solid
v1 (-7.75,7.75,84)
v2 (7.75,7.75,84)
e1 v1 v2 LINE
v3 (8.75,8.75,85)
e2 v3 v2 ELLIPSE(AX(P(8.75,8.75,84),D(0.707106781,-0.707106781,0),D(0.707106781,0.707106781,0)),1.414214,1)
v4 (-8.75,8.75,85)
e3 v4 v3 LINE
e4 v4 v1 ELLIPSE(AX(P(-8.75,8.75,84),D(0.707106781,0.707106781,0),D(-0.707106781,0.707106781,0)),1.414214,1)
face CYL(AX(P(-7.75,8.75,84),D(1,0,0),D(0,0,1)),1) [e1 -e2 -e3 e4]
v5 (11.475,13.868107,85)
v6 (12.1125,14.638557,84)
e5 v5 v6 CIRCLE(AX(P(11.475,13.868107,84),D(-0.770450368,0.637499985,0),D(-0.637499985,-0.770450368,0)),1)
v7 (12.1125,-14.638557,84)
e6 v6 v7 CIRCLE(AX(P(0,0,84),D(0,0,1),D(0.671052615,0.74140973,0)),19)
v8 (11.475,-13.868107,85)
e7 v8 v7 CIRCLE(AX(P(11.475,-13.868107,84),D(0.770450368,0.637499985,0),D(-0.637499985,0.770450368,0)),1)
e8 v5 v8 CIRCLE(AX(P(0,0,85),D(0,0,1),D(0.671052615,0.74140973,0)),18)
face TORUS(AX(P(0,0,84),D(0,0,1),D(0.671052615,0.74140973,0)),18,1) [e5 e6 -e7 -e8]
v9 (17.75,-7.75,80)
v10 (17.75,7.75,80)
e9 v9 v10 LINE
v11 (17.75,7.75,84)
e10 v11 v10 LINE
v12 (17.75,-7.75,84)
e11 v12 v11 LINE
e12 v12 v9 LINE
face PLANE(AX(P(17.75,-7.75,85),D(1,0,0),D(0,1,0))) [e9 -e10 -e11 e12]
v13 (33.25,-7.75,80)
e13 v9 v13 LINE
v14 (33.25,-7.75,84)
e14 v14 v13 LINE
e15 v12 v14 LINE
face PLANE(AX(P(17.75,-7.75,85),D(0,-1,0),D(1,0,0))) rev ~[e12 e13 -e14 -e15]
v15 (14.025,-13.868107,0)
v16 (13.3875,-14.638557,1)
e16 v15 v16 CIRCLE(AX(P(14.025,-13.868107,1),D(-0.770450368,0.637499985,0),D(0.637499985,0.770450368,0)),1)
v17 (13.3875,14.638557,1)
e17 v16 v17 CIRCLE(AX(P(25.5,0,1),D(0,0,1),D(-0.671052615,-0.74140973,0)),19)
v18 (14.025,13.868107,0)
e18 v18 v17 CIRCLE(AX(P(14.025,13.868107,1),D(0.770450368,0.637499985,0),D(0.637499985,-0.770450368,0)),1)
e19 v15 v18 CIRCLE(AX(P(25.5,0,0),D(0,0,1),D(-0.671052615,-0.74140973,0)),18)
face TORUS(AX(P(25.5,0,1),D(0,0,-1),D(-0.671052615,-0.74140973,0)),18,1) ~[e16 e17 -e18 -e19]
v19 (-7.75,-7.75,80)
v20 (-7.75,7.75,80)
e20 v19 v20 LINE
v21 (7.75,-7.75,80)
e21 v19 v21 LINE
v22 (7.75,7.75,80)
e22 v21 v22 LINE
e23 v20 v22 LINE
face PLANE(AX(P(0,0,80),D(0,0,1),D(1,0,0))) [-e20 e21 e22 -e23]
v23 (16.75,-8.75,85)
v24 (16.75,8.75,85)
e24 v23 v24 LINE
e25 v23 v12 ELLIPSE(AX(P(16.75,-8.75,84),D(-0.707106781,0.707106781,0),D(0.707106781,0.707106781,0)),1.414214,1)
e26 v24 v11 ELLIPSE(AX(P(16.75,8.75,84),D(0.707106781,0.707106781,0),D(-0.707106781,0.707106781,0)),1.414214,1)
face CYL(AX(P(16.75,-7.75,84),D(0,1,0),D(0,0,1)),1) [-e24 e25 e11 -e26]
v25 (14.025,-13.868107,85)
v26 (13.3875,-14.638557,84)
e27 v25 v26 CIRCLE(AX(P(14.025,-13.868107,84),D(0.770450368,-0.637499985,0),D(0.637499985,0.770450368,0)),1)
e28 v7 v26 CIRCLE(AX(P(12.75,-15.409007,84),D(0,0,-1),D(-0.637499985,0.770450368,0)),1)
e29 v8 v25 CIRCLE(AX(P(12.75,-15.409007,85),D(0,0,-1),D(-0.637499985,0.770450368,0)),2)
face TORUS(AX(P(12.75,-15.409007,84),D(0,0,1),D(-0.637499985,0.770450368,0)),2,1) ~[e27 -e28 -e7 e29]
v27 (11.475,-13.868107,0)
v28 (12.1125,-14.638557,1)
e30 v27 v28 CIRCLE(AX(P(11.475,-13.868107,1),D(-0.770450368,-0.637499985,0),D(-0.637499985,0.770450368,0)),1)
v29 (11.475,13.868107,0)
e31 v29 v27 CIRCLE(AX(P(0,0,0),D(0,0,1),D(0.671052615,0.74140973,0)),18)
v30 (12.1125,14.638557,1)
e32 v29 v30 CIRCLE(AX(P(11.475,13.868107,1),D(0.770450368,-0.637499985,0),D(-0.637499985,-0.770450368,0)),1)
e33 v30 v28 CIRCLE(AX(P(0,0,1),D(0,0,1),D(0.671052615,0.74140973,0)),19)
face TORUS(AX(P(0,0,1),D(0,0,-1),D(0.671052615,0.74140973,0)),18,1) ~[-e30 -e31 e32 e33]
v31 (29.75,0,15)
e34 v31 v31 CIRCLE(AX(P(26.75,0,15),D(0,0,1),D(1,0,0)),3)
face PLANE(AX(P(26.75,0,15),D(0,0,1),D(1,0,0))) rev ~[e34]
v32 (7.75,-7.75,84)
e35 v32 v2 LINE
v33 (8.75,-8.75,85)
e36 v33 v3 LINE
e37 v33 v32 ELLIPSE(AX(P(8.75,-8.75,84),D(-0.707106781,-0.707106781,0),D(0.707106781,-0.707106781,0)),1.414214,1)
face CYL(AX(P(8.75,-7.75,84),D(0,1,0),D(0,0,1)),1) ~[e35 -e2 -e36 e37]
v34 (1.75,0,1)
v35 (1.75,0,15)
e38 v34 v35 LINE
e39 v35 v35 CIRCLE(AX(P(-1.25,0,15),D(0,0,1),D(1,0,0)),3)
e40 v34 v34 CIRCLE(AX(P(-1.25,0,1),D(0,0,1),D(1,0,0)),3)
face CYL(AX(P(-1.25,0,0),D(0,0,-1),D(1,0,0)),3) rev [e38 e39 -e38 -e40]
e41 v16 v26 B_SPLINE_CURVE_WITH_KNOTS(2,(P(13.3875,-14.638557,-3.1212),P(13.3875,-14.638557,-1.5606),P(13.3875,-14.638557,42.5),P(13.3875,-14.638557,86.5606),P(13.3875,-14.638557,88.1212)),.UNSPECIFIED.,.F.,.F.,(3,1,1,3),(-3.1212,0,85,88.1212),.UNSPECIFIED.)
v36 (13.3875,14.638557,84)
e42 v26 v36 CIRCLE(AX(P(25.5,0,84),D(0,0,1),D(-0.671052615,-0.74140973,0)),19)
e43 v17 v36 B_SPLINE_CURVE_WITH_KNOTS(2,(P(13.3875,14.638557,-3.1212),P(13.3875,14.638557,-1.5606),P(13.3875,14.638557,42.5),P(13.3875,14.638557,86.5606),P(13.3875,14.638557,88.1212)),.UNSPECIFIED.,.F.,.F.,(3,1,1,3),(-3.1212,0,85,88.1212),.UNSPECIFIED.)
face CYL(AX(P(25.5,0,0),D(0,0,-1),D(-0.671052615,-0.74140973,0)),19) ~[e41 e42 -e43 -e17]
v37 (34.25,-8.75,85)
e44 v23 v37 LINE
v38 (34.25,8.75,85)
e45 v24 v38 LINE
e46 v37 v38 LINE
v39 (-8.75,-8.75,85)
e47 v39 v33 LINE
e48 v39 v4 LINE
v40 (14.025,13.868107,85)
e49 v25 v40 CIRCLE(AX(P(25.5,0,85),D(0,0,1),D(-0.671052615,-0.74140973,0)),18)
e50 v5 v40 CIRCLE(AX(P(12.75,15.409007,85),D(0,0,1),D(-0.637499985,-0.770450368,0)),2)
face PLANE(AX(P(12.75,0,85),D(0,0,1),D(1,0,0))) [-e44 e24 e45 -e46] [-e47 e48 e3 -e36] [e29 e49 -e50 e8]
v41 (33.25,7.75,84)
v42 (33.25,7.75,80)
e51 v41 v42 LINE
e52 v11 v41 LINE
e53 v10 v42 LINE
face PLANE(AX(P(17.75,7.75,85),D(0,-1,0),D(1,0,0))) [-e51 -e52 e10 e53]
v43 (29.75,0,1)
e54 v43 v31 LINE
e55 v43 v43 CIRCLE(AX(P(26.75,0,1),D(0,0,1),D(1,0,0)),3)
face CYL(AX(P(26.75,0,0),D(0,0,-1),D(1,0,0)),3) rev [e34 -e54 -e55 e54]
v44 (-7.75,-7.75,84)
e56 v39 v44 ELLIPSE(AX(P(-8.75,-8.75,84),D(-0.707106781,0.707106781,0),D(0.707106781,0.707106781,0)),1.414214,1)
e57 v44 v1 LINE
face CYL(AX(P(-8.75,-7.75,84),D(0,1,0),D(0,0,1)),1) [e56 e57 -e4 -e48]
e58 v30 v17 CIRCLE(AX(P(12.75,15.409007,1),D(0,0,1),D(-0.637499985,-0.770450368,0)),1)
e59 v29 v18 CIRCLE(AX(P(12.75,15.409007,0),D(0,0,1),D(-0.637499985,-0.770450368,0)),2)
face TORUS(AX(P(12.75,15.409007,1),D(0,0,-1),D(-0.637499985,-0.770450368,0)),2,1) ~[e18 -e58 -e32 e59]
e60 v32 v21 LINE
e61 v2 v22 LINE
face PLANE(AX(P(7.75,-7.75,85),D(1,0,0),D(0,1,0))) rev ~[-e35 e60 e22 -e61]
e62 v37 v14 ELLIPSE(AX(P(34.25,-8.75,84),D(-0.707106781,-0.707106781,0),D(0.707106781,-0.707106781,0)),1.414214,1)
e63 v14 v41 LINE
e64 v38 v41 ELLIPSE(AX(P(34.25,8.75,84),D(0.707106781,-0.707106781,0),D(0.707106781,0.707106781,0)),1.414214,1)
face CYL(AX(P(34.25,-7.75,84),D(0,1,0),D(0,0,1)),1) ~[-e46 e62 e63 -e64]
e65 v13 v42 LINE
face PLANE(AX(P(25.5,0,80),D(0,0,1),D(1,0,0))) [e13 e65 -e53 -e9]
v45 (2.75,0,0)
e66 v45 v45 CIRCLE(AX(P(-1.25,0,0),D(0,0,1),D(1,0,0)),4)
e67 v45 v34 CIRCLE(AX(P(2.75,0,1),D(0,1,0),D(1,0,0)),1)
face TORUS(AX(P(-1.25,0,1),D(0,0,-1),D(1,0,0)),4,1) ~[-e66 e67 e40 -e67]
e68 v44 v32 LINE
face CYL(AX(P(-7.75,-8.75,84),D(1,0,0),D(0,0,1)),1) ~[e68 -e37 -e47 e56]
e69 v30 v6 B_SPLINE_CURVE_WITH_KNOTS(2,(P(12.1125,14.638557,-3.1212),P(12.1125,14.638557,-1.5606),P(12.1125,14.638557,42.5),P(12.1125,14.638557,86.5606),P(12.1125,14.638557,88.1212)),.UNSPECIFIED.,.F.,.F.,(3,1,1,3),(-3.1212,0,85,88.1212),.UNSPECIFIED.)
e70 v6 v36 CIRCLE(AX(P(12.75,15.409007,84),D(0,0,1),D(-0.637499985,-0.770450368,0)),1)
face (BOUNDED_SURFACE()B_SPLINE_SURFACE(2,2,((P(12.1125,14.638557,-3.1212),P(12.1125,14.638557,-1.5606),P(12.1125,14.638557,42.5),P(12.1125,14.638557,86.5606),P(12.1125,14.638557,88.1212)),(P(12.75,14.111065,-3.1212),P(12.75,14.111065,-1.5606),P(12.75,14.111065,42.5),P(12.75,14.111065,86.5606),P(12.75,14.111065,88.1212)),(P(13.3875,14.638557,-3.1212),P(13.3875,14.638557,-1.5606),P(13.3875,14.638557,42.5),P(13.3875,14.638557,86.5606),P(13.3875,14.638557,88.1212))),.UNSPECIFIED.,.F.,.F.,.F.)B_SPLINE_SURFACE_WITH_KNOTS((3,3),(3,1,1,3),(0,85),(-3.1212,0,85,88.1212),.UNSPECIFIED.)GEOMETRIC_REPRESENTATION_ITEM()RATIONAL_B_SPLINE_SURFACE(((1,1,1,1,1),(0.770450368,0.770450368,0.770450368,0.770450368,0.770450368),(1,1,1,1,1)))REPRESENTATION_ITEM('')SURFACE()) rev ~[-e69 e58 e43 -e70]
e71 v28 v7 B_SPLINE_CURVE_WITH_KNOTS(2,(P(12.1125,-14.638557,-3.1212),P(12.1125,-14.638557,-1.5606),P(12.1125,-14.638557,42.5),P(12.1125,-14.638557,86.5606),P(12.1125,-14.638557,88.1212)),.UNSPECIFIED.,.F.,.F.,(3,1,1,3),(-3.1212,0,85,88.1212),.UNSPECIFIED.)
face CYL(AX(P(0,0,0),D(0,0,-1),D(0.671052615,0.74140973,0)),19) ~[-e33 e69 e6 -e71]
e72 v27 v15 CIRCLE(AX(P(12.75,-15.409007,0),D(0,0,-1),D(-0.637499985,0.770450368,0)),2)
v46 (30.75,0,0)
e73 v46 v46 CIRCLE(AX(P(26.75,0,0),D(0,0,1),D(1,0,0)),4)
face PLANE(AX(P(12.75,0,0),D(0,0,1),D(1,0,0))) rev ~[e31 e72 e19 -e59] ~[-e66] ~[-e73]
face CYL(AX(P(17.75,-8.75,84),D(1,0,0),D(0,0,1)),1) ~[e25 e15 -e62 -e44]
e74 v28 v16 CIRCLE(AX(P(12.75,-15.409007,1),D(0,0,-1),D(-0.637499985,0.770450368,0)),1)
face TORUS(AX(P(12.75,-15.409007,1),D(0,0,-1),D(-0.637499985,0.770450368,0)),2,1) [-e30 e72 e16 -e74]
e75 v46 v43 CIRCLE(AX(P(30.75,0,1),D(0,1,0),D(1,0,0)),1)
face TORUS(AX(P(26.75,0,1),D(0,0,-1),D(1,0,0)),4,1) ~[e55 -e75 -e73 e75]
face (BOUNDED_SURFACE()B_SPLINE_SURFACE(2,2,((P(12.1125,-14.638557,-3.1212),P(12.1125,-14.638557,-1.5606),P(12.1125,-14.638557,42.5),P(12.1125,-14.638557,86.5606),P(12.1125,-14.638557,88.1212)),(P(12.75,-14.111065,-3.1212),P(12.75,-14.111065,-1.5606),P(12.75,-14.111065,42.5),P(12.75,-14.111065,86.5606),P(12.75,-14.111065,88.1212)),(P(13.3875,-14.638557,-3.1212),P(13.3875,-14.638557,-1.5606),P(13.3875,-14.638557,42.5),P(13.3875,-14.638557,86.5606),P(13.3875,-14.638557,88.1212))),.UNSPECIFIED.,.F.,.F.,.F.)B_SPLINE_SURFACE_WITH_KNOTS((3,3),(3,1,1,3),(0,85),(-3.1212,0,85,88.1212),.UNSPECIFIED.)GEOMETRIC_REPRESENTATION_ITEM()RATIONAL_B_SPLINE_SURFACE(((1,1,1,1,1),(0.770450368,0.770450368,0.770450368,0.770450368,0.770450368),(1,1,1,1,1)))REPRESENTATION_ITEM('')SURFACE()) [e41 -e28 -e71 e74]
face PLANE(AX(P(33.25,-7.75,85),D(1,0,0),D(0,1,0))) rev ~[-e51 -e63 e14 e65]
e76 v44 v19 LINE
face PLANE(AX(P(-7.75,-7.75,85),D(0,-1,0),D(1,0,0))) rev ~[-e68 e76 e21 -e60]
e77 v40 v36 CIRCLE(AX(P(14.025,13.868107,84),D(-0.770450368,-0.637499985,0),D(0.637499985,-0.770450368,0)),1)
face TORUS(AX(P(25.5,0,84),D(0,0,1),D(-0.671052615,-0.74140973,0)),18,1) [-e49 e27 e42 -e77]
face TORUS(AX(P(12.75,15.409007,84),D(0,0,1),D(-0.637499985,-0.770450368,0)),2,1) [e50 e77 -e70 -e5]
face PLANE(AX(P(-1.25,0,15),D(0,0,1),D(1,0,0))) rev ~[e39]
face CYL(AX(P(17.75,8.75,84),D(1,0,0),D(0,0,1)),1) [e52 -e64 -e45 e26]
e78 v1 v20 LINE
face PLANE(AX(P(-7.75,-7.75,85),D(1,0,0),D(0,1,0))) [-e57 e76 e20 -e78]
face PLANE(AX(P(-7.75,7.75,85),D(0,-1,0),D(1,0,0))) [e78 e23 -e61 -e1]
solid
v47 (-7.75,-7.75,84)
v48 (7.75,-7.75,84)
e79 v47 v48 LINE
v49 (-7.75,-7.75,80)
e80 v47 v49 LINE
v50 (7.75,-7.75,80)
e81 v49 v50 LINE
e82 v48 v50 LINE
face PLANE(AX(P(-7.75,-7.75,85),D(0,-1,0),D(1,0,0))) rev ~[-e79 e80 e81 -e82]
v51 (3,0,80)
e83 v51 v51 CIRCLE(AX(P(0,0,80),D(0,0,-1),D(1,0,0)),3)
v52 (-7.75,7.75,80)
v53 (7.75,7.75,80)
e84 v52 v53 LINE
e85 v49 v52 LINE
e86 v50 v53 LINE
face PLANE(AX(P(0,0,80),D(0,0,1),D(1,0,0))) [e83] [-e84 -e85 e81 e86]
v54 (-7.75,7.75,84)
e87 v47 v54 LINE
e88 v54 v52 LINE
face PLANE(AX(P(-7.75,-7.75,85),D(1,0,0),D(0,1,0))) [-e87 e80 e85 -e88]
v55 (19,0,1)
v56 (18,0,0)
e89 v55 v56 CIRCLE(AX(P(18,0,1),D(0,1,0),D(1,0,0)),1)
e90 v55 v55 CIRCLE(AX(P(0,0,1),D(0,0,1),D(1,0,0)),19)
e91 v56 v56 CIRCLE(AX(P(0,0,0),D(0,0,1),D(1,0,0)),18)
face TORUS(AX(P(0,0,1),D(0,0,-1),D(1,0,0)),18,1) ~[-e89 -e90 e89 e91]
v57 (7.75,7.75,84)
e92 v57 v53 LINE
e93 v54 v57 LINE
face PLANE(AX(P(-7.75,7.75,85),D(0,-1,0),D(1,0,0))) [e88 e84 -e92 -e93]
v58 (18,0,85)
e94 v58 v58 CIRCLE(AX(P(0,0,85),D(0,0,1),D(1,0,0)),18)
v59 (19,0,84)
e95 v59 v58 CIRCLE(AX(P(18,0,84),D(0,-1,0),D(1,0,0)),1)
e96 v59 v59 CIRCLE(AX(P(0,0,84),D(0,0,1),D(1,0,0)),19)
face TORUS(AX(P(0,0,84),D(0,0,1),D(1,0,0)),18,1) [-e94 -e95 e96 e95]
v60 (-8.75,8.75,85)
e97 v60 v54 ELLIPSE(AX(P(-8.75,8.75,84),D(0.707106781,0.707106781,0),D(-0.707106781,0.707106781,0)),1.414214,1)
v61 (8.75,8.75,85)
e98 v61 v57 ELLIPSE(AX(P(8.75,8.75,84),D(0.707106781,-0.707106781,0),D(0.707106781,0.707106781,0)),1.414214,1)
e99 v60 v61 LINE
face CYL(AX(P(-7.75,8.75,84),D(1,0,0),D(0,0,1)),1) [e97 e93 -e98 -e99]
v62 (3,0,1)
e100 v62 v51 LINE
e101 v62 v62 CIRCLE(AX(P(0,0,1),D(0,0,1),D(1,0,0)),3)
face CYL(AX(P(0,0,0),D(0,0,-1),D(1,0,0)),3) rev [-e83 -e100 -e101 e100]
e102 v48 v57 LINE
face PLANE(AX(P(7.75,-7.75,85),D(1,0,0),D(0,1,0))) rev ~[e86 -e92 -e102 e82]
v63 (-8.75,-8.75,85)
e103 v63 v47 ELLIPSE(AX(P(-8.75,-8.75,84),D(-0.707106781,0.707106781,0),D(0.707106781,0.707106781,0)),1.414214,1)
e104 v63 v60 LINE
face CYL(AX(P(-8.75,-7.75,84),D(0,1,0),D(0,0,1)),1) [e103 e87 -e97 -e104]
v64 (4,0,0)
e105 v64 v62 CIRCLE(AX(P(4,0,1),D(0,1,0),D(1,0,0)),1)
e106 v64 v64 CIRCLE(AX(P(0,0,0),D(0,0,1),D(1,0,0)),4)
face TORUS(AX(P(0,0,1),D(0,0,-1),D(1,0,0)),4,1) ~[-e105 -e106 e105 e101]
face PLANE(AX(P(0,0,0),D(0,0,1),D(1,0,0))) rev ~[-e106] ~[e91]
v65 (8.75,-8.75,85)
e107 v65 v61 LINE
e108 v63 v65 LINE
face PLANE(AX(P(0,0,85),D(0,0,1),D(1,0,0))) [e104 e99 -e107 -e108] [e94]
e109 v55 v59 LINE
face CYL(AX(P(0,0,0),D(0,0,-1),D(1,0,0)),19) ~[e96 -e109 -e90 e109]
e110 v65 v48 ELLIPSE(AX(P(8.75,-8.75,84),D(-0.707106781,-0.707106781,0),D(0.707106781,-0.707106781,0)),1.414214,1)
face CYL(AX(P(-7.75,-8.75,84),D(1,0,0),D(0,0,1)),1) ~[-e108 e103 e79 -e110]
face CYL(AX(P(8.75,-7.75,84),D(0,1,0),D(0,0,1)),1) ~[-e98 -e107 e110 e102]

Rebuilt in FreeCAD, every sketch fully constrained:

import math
import FreeCAD as App
import Part
import Sketcher

V = App.Vector


def edges_at(feature, points):
    """Names of the edges that pass closest to the given points."""
    edges = feature.Shape.Edges
    near = lambda p: min(range(len(edges)), key=lambda i: edges[i].distToShape(Part.Vertex(*p))[0])
    return sorted({f"Edge{near(p) + 1}" for p in points})

doc = App.newDocument("Part")
body = doc.addObject("PartDesign::Body", "Body")

sketch1 = doc.addObject("Sketcher::SketchObject", "Sketch")
body.addObject(sketch1)
sketch1.AttachmentSupport = (doc.XY_Plane, [""])
sketch1.MapMode = "FlatFace"
sketch1.addGeometry(Part.ArcOfCircle(Part.Circle(V(0, 0, 0), V(0, 0, 1), 19), math.radians(48), math.radians(312)), False)
sketch1.addGeometry(Part.ArcOfCircle(Part.Circle(V(25, 0, 0), V(0, 0, 1), 19), math.radians(-132), math.radians(132)), False)
sketch1.addConstraint(Sketcher.Constraint("Coincident", 0, 1, 1, 2))
sketch1.addConstraint(Sketcher.Constraint("Coincident", 1, 1, 0, 2))
sketch1.addConstraint(Sketcher.Constraint("Coincident", 0, 3, -1, 1))
sketch1.addConstraint(Sketcher.Constraint("Equal", 0, 1))
sketch1.addConstraint(Sketcher.Constraint("PointOnObject", 1, 3, -1))
sketch1.addConstraint(Sketcher.Constraint("Radius", 0, 19.0))
sketch1.addConstraint(Sketcher.Constraint("DistanceX", -1, 1, 1, 3, 25.5))
pad1 = doc.addObject("PartDesign::Pad", "Pad")
body.addObject(pad1)
pad1.Profile = sketch1
pad1.Length = 85

sketch2 = doc.addObject("Sketcher::SketchObject", "Sketch001")
body.addObject(sketch2)
sketch2.AttachmentSupport = (doc.XY_Plane, [""])
sketch2.MapMode = "FlatFace"
sketch2.AttachmentOffset = App.Placement(V(0, 0, 85), App.Rotation())
sketch2.addGeometry(Part.LineSegment(V(-8, 8, 0), V(-8, -8, 0)), False)
sketch2.addGeometry(Part.LineSegment(V(-8, -8, 0), V(8, -8, 0)), False)
sketch2.addGeometry(Part.LineSegment(V(8, -8, 0), V(8, 8, 0)), False)
sketch2.addGeometry(Part.LineSegment(V(8, 8, 0), V(-8, 8, 0)), False)
sketch2.addGeometry(Part.LineSegment(V(18, 8, 0), V(18, -8, 0)), False)
sketch2.addGeometry(Part.LineSegment(V(18, -8, 0), V(33, -8, 0)), False)
sketch2.addGeometry(Part.LineSegment(V(33, -8, 0), V(33, 8, 0)), False)
sketch2.addGeometry(Part.LineSegment(V(33, 8, 0), V(18, 8, 0)), False)
sketch2.addConstraint(Sketcher.Constraint("Coincident", 0, 2, 1, 1))
sketch2.addConstraint(Sketcher.Constraint("Coincident", 1, 2, 2, 1))
sketch2.addConstraint(Sketcher.Constraint("Coincident", 2, 2, 3, 1))
sketch2.addConstraint(Sketcher.Constraint("Coincident", 3, 2, 0, 1))
sketch2.addConstraint(Sketcher.Constraint("Coincident", 4, 2, 5, 1))
sketch2.addConstraint(Sketcher.Constraint("Coincident", 5, 2, 6, 1))
sketch2.addConstraint(Sketcher.Constraint("Coincident", 6, 2, 7, 1))
sketch2.addConstraint(Sketcher.Constraint("Coincident", 7, 2, 4, 1))
sketch2.addConstraint(Sketcher.Constraint("Vertical", 0))
sketch2.addConstraint(Sketcher.Constraint("Horizontal", 1))
sketch2.addConstraint(Sketcher.Constraint("Vertical", 2))
sketch2.addConstraint(Sketcher.Constraint("Horizontal", 3))
sketch2.addConstraint(Sketcher.Constraint("Vertical", 4))
sketch2.addConstraint(Sketcher.Constraint("Horizontal", 5))
sketch2.addConstraint(Sketcher.Constraint("Vertical", 6))
sketch2.addConstraint(Sketcher.Constraint("Horizontal", 7))
sketch2.addConstraint(Sketcher.Constraint("Symmetric", 0, 2, 2, 2, -1, 1))
sketch2.addConstraint(Sketcher.Constraint("Horizontal", 1, 2, 4, 2))
sketch2.addConstraint(Sketcher.Constraint("Horizontal", 3, 2, 6, 2))
sketch2.addConstraint(Sketcher.Constraint("Equal", 3, 5))
sketch2.addConstraint(Sketcher.Constraint("Equal", 7, 0))
sketch2.addConstraint(Sketcher.Constraint("DistanceX", 1, 1, 1, 2, 15.5))
sketch2.addConstraint(Sketcher.Constraint("DistanceX", 1, 2, 4, 2, 10.0))
pocket1 = doc.addObject("PartDesign::Pocket", "Pocket")
body.addObject(pocket1)
pocket1.Profile = sketch2
pocket1.Length = 5

sketch3 = doc.addObject("Sketcher::SketchObject", "Sketch002")
body.addObject(sketch3)
sketch3.AttachmentSupport = (doc.XY_Plane, [""])
sketch3.MapMode = "FlatFace"
sketch3.addGeometry(Part.Circle(V(-1.2, 0, 0), V(0, 0, 1), 3), False)
sketch3.addGeometry(Part.Circle(V(26.8, 0, 0), V(0, 0, 1), 3), False)
sketch3.addConstraint(Sketcher.Constraint("Equal", 0, 1))
sketch3.addConstraint(Sketcher.Constraint("PointOnObject", 0, 3, -1))
sketch3.addConstraint(Sketcher.Constraint("PointOnObject", 1, 3, -1))
sketch3.addConstraint(Sketcher.Constraint("Diameter", 0, 6.0))
sketch3.addConstraint(Sketcher.Constraint("DistanceX", 0, 3, 1, 3, 28.0))
sketch3.addConstraint(Sketcher.Constraint("DistanceX", 0, 3, -1, 1, 1.25))
pocket2 = doc.addObject("PartDesign::Pocket", "Pocket001")
body.addObject(pocket2)
pocket2.Profile = sketch3
pocket2.Length = 15
pocket2.Reversed = True
doc.recompute()

fillet = doc.addObject("PartDesign::Fillet", "Fillet")
body.addObject(fillet)
fillet.Base = (pocket2, edges_at(pocket2, [
    (-19, 0, 85),
    (44.5, 0, 85),
    (-19, 0, 0),
    (44.5, 0, 0),
    (-4.25, 0, 0),
    (-7.75, 0, 85),
    (0, -7.75, 85),
    (7.75, 0, 85),
    (0, 7.75, 85),
    (17.75, 0, 85),
    (25.5, -7.75, 85),
    (33.25, 0, 85),
    (25.5, 7.75, 85),
    (23.75, 0, 0),
    (12.75, -14.087, 42.5),
    (12.75, 14.087, 42.5),
]))
fillet.Radius = 1
body2 = doc.addObject("PartDesign::Body", "Body001")

sketch4 = doc.addObject("Sketcher::SketchObject", "Sketch003")
body2.addObject(sketch4)
sketch4.AttachmentSupport = (doc.getObject("XY_Plane001"), [""])
sketch4.MapMode = "FlatFace"
sketch4.addGeometry(Part.Circle(V(0, 0, 0), V(0, 0, 1), 19), False)
sketch4.addGeometry(Part.Circle(V(0, 0, 0), V(0, 0, 1), 3), False)
sketch4.addConstraint(Sketcher.Constraint("Coincident", 0, 3, -1, 1))
sketch4.addConstraint(Sketcher.Constraint("Coincident", 1, 3, -1, 1))
sketch4.addConstraint(Sketcher.Constraint("Diameter", 0, 38.0))
sketch4.addConstraint(Sketcher.Constraint("Diameter", 1, 6.0))
pad2 = doc.addObject("PartDesign::Pad", "Pad001")
body2.addObject(pad2)
pad2.Profile = sketch4
pad2.Length = 85

sketch5 = doc.addObject("Sketcher::SketchObject", "Sketch004")
body2.addObject(sketch5)
sketch5.AttachmentSupport = (doc.getObject("XY_Plane001"), [""])
sketch5.MapMode = "FlatFace"
sketch5.AttachmentOffset = App.Placement(V(0, 0, 85), App.Rotation())
sketch5.addGeometry(Part.LineSegment(V(-8, 8, 0), V(-8, -8, 0)), False)
sketch5.addGeometry(Part.LineSegment(V(-8, -8, 0), V(8, -8, 0)), False)
sketch5.addGeometry(Part.LineSegment(V(8, -8, 0), V(8, 8, 0)), False)
sketch5.addGeometry(Part.LineSegment(V(8, 8, 0), V(-8, 8, 0)), False)
sketch5.addConstraint(Sketcher.Constraint("Coincident", 0, 2, 1, 1))
sketch5.addConstraint(Sketcher.Constraint("Coincident", 1, 2, 2, 1))
sketch5.addConstraint(Sketcher.Constraint("Coincident", 2, 2, 3, 1))
sketch5.addConstraint(Sketcher.Constraint("Coincident", 3, 2, 0, 1))
sketch5.addConstraint(Sketcher.Constraint("Vertical", 0))
sketch5.addConstraint(Sketcher.Constraint("Horizontal", 1))
sketch5.addConstraint(Sketcher.Constraint("Vertical", 2))
sketch5.addConstraint(Sketcher.Constraint("Horizontal", 3))
sketch5.addConstraint(Sketcher.Constraint("Symmetric", 0, 2, 2, 2, -1, 1))
sketch5.addConstraint(Sketcher.Constraint("Equal", 3, 0))
sketch5.addConstraint(Sketcher.Constraint("DistanceX", 1, 1, 1, 2, 15.5))
pocket3 = doc.addObject("PartDesign::Pocket", "Pocket002")
body2.addObject(pocket3)
pocket3.Profile = sketch5
pocket3.Length = 5
doc.recompute()

fillet2 = doc.addObject("PartDesign::Fillet", "Fillet001")
body2.addObject(fillet2)
fillet2.Base = (pocket3, edges_at(pocket3, [
    (-19, 0, 85),
    (-7.75, 0, 85),
    (0, -7.75, 85),
    (7.75, 0, 85),
    (0, 7.75, 85),
    (-19, 0, 0),
    (-3, 0, 0),
]))
fillet2.Radius = 1

doc.recompute()
